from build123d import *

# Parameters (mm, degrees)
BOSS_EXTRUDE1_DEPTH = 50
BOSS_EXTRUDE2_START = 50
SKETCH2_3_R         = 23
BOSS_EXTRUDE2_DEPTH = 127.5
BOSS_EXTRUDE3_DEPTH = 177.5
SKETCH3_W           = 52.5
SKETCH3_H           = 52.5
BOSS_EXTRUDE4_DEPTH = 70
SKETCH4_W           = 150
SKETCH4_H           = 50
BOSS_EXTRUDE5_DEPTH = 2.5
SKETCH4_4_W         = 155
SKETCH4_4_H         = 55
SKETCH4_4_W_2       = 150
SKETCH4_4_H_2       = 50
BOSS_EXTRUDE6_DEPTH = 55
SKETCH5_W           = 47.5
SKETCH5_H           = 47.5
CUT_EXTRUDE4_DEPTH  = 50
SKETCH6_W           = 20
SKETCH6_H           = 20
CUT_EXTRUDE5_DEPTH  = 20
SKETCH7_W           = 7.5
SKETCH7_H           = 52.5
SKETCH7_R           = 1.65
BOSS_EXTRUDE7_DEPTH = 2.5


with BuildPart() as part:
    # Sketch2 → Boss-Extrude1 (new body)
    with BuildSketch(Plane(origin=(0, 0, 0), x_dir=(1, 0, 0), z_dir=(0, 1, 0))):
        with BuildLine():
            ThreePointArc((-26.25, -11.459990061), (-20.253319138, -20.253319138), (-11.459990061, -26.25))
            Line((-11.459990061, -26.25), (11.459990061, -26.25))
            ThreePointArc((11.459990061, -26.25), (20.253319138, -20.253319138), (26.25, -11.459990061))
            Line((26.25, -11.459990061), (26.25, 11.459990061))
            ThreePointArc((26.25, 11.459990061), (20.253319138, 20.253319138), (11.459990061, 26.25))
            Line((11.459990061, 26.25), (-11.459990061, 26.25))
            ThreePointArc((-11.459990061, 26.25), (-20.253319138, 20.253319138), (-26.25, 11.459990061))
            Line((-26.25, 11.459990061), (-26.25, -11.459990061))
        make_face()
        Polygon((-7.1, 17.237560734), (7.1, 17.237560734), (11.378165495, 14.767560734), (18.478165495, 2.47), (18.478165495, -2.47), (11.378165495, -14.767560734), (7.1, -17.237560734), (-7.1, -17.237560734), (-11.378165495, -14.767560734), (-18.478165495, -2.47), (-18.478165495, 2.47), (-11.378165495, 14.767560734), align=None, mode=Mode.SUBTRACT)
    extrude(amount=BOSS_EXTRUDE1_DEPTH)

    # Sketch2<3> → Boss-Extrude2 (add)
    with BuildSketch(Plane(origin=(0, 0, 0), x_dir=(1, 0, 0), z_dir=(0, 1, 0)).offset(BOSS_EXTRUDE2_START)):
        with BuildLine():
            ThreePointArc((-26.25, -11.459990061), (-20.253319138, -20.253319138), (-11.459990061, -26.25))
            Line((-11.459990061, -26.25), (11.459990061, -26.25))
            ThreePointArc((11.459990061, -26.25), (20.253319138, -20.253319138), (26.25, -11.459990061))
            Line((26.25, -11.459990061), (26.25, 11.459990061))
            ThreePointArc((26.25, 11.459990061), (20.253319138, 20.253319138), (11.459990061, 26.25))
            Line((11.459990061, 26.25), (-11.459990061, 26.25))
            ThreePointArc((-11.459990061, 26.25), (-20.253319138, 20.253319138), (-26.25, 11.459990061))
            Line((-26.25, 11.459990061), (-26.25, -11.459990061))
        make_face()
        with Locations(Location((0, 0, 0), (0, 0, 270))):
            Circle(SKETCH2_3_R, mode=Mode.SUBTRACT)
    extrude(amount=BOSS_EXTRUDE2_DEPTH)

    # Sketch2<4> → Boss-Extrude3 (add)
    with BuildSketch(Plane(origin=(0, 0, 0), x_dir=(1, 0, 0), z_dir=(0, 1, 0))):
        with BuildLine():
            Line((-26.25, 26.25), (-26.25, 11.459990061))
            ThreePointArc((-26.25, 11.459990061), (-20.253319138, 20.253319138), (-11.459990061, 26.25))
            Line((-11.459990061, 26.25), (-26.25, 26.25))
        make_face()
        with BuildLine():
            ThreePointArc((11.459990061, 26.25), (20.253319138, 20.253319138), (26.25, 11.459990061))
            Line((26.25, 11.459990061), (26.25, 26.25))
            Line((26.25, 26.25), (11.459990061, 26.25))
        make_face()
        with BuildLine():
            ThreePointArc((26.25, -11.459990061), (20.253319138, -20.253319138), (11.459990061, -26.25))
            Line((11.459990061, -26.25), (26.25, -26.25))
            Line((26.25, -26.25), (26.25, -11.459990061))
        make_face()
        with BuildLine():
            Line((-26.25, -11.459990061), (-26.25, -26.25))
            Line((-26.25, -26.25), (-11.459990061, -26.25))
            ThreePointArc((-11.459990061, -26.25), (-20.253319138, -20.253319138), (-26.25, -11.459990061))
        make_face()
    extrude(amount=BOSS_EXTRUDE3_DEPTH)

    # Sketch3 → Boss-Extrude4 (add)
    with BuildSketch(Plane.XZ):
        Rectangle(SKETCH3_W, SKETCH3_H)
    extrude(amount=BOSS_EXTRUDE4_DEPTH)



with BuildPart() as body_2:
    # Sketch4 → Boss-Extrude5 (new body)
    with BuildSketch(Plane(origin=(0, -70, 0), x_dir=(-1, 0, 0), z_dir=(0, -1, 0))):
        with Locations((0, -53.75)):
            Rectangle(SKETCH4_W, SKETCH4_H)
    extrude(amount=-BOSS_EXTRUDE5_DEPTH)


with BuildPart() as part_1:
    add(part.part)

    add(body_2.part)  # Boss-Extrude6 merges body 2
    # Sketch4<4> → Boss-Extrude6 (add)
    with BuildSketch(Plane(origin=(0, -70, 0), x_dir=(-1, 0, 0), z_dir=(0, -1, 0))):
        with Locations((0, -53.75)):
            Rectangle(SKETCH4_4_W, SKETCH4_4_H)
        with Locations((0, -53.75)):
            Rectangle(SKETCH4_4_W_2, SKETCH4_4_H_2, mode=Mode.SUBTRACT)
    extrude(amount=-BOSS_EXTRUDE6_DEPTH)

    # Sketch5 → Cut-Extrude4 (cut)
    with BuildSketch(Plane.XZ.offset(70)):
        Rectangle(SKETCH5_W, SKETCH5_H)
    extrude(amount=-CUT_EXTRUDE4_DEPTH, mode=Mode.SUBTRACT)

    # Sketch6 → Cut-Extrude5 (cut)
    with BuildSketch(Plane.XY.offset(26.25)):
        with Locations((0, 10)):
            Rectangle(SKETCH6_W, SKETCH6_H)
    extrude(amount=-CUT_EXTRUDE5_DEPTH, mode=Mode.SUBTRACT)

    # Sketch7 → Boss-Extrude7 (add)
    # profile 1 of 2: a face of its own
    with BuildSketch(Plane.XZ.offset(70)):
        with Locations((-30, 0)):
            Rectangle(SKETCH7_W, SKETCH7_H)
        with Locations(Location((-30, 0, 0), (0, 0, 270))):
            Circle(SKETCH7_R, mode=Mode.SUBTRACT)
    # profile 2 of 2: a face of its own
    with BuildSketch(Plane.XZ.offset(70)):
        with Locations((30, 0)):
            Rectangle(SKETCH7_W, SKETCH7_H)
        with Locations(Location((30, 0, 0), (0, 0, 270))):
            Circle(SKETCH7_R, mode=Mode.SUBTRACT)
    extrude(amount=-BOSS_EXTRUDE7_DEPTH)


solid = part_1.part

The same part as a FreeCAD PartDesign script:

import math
import FreeCAD as App
import Part
import Sketcher
from FreeCAD import Vector
Q = App.Units.Quantity


def add_polygon(sketch, points):
    """Adds a closed chain of lines whose ends are joined by coincident constraints."""
    first, n = sketch.GeometryCount, len(points)
    for a, b in zip(points, points[1:] + points[:1]):
        sketch.addGeometry(Part.LineSegment(App.Vector(*a, 0), App.Vector(*b, 0)), False)
    for i in range(n):
        sketch.addConstraint(Sketcher.Constraint("Coincident", first + i, 2, first + (i + 1) % n, 1))

doc = App.newDocument("Part")
body = doc.addObject("PartDesign::Body", "Body")

sketch1 = body.newObject("Sketcher::SketchObject", "Sketch")
sketch1.AttachmentSupport = (doc.getObject("XZ_Plane"), [""])
sketch1.MapMode = "FlatFace"
sketch1.addGeometry(Part.ArcOfCircle(Part.Circle(Vector(0, 0, 0), Vector(0, 0, 1), 28.642519), math.radians(113.584688), math.radians(156.415312)), False)
sketch1.addGeometry(Part.LineSegment(Vector(-11.45999, 26.25, 0), Vector(11.45999, 26.25, 0)), False)
sketch1.addGeometry(Part.ArcOfCircle(Part.Circle(Vector(0, 0, 0), Vector(0, 0, 1), 28.642519), math.radians(23.584688), math.radians(66.415312)), False)
sketch1.addGeometry(Part.LineSegment(Vector(26.25, 11.45999, 0), Vector(26.25, -11.45999, 0)), False)
sketch1.addGeometry(Part.ArcOfCircle(Part.Circle(Vector(0, 0, 0), Vector(0, 0, 1), 28.642519), math.radians(-66.415312), math.radians(-23.584688)), False)
sketch1.addGeometry(Part.LineSegment(Vector(11.45999, -26.25, 0), Vector(-11.45999, -26.25, 0)), False)
sketch1.addGeometry(Part.ArcOfCircle(Part.Circle(Vector(0, 0, 0), Vector(0, 0, 1), 28.642519), math.radians(-156.415312), math.radians(-113.584688)), False)
sketch1.addGeometry(Part.LineSegment(Vector(-26.25, -11.45999, 0), Vector(-26.25, 11.45999, 0)), False)
add_polygon(sketch1, [(-11.378165, -14.767561), (-7.1, -17.237561), (7.1, -17.237561), (11.378165, -14.767561), (18.478165, -2.47), (18.478165, 2.47), (11.378165, 14.767561), (7.1, 17.237561), (-7.1, 17.237561), (-11.378165, 14.767561), (-18.478165, 2.47), (-18.478165, -2.47)])
sketch1.addConstraint([
    Sketcher.Constraint("Coincident", 0, 1, 1, 1),
    Sketcher.Constraint("Coincident", 1, 2, 2, 2),
    Sketcher.Constraint("Coincident", 2, 1, 3, 1),
    Sketcher.Constraint("Coincident", 3, 2, 4, 2),
    Sketcher.Constraint("Coincident", 4, 1, 5, 1),
    Sketcher.Constraint("Coincident", 5, 2, 6, 2),
    Sketcher.Constraint("Coincident", 6, 1, 7, 1),
    Sketcher.Constraint("Coincident", 7, 2, 0, 2),
    Sketcher.Constraint("Horizontal", 1),
    Sketcher.Constraint("Vertical", 3),
    Sketcher.Constraint("Horizontal", 5),
    Sketcher.Constraint("Vertical", 7),
    Sketcher.Constraint("Horizontal", 9),
    Sketcher.Constraint("Vertical", 12),
    Sketcher.Constraint("Horizontal", 15),
    Sketcher.Constraint("Vertical", 18),
    Sketcher.Constraint("Coincident", 0, 3, -1, 1),
    Sketcher.Constraint("Coincident", 2, 3, -1, 1),
    Sketcher.Constraint("Coincident", 4, 3, -1, 1),
    Sketcher.Constraint("Coincident", 6, 3, -1, 1),
    Sketcher.Constraint("Equal", 0, 2),
    Sketcher.Constraint("Equal", 2, 4),
    Sketcher.Constraint("Equal", 4, 6),
    Sketcher.Constraint("Symmetric", 8, 2, 14, 2, -1, 1),
    Sketcher.Constraint("Symmetric", 10, 2, 16, 2, -1, 1),
    Sketcher.Constraint("Symmetric", 11, 2, 17, 2, -1, 1),
    Sketcher.Constraint("Symmetric", 13, 2, 19, 2, -1, 1),
    Sketcher.Constraint("Symmetric", 13, 2, 16, 2, -2),
    Sketcher.Constraint("Perpendicular", 8, 11),
    Sketcher.Constraint("Perpendicular", 10, 13),
    Sketcher.Constraint("Perpendicular", 13, 16),
    Sketcher.Constraint("Perpendicular", 16, 19),
    Sketcher.Constraint("Horizontal", 3, 2, 6, 1),
    Sketcher.Constraint("Horizontal", 12, 2, 17, 2),
    Sketcher.Constraint("Vertical", 1, 2, 4, 1),
    Sketcher.Constraint("Equal", 5, 3),
    Sketcher.Constraint("Angle", 8, Q("-30 deg")),
    Sketcher.Constraint("DistanceX", 9, 1, 9, 2, 14.2),
    Sketcher.Constraint("Distance", 11, 14.2),
    Sketcher.Constraint("DistanceY", 12, 1, 12, 2, 4.94),
    Sketcher.Constraint("Distance", 8, 4.94),
    Sketcher.Constraint("DistanceY", -1, 1, 0, 1, 26.25),
    Sketcher.Constraint("Radius", 0, 28.642519),
])
pad1 = body.newObject("PartDesign::Pad", "Pad")
pad1.Profile = sketch1
pad1.Length = 50
pad1.Reversed = True

sketch2 = body.newObject("Sketcher::SketchObject", "Sketch001")
sketch2.AttachmentSupport = (doc.getObject("XZ_Plane"), [""])
sketch2.MapMode = "FlatFace"
sketch2.AttachmentOffset = App.Placement(Vector(0, 0, -50), App.Rotation())
sketch2.addGeometry([
    Part.ArcOfCircle(Part.Circle(Vector(0, 0, 0), Vector(0, 0, 1), 28.642519), math.radians(113.584688), math.radians(156.415312)),
    Part.LineSegment(Vector(-11.45999, 26.25, 0), Vector(11.45999, 26.25, 0)),
    Part.ArcOfCircle(Part.Circle(Vector(0, 0, 0), Vector(0, 0, 1), 28.642519), math.radians(23.584688), math.radians(66.415312)),
    Part.LineSegment(Vector(26.25, 11.45999, 0), Vector(26.25, -11.45999, 0)),
    Part.ArcOfCircle(Part.Circle(Vector(0, 0, 0), Vector(0, 0, 1), 28.642519), math.radians(-66.415312), math.radians(-23.584688)),
    Part.LineSegment(Vector(11.45999, -26.25, 0), Vector(-11.45999, -26.25, 0)),
    Part.ArcOfCircle(Part.Circle(Vector(0, 0, 0), Vector(0, 0, 1), 28.642519), math.radians(-156.415312), math.radians(-113.584688)),
    Part.LineSegment(Vector(-26.25, -11.45999, 0), Vector(-26.25, 11.45999, 0)),
    Part.Circle(Vector(0, 0, 0), Vector(0, 0, 1), 23),
], False)
sketch2.addConstraint([
    Sketcher.Constraint("Coincident", 0, 1, 1, 1),
    Sketcher.Constraint("Coincident", 1, 2, 2, 2),
    Sketcher.Constraint("Coincident", 2, 1, 3, 1),
    Sketcher.Constraint("Coincident", 3, 2, 4, 2),
    Sketcher.Constraint("Coincident", 4, 1, 5, 1),
    Sketcher.Constraint("Coincident", 5, 2, 6, 2),
    Sketcher.Constraint("Coincident", 6, 1, 7, 1),
    Sketcher.Constraint("Coincident", 7, 2, 0, 2),
    Sketcher.Constraint("Horizontal", 1),
    Sketcher.Constraint("Vertical", 3),
    Sketcher.Constraint("Horizontal", 5),
    Sketcher.Constraint("Vertical", 7),
    Sketcher.Constraint("Coincident", 0, 3, -1, 1),
    Sketcher.Constraint("Coincident", 2, 3, -1, 1),
    Sketcher.Constraint("Coincident", 4, 3, -1, 1),
    Sketcher.Constraint("Coincident", 6, 3, -1, 1),
    Sketcher.Constraint("Coincident", 8, 3, -1, 1),
    Sketcher.Constraint("Equal", 0, 2),
    Sketcher.Constraint("Equal", 2, 4),
    Sketcher.Constraint("Equal", 4, 6),
    Sketcher.Constraint("Horizontal", 3, 2, 6, 1),
    Sketcher.Constraint("Vertical", 1, 2, 4, 1),
    Sketcher.Constraint("Equal", 5, 3),
    Sketcher.Constraint("Diameter", 8, 46.0),
    Sketcher.Constraint("DistanceY", -1, 1, 0, 1, 26.25),
    Sketcher.Constraint("Radius", 0, 28.642519),
])
pad2 = body.newObject("PartDesign::Pad", "Pad001")
pad2.Profile = sketch2
pad2.Length = 127.5
pad2.Reversed = True

sketch3 = body.newObject("Sketcher::SketchObject", "Sketch002")
sketch3.AttachmentSupport = (doc.getObject("XZ_Plane"), [""])
sketch3.MapMode = "FlatFace"
sketch3.addGeometry([
    Part.LineSegment(Vector(-26.25, -26.25, 0), Vector(-26.25, -11.45999, 0)),
    Part.ArcOfCircle(Part.Circle(Vector(0, 0, 0), Vector(0, 0, 1), 28.642519), math.radians(-156.415312), math.radians(-113.584688)),
    Part.LineSegment(Vector(-11.45999, -26.25, 0), Vector(-26.25, -26.25, 0)),
    Part.ArcOfCircle(Part.Circle(Vector(0, 0, 0), Vector(0, 0, 1), 28.642519), math.radians(-66.415312), math.radians(-23.584688)),
    Part.LineSegment(Vector(26.25, -11.45999, 0), Vector(26.25, -26.25, 0)),
    Part.LineSegment(Vector(26.25, -26.25, 0), Vector(11.45999, -26.25, 0)),
    Part.ArcOfCircle(Part.Circle(Vector(0, 0, 0), Vector(0, 0, 1), 28.642519), math.radians(23.584688), math.radians(66.415312)),
    Part.LineSegment(Vector(11.45999, 26.25, 0), Vector(26.25, 26.25, 0)),
    Part.LineSegment(Vector(26.25, 26.25, 0), Vector(26.25, 11.45999, 0)),
    Part.LineSegment(Vector(-26.25, 11.45999, 0), Vector(-26.25, 26.25, 0)),
    Part.LineSegment(Vector(-26.25, 26.25, 0), Vector(-11.45999, 26.25, 0)),
    Part.ArcOfCircle(Part.Circle(Vector(0, 0, 0), Vector(0, 0, 1), 28.642519), math.radians(113.584688), math.radians(156.415312)),
], False)
sketch3.addConstraint([
    Sketcher.Constraint("Coincident", 0, 2, 1, 1),
    Sketcher.Constraint("Coincident", 1, 2, 2, 1),
    Sketcher.Constraint("Coincident", 2, 2, 0, 1),
    Sketcher.Constraint("Coincident", 3, 2, 4, 1),
    Sketcher.Constraint("Coincident", 4, 2, 5, 1),
    Sketcher.Constraint("Coincident", 5, 2, 3, 1),
    Sketcher.Constraint("Coincident", 6, 2, 7, 1),
    Sketcher.Constraint("Coincident", 7, 2, 8, 1),
    Sketcher.Constraint("Coincident", 8, 2, 6, 1),
    Sketcher.Constraint("Coincident", 9, 2, 10, 1),
    Sketcher.Constraint("Coincident", 10, 2, 11, 1),
    Sketcher.Constraint("Coincident", 11, 2, 9, 1),
    Sketcher.Constraint("Vertical", 0),
    Sketcher.Constraint("Horizontal", 2),
    Sketcher.Constraint("Vertical", 4),
    Sketcher.Constraint("Horizontal", 5),
    Sketcher.Constraint("Horizontal", 7),
    Sketcher.Constraint("Vertical", 8),
    Sketcher.Constraint("Vertical", 9),
    Sketcher.Constraint("Horizontal", 10),
    Sketcher.Constraint("Coincident", 1, 3, -1, 1),
    Sketcher.Constraint("Coincident", 3, 3, -1, 1),
    Sketcher.Constraint("Coincident", 6, 3, -1, 1),
    Sketcher.Constraint("Coincident", 11, 3, -1, 1),
    Sketcher.Constraint("Equal", 1, 3),
    Sketcher.Constraint("Equal", 3, 6),
    Sketcher.Constraint("Equal", 6, 11),
    Sketcher.Constraint("Symmetric", 2, 2, 7, 2, -1, 1),
    Sketcher.Constraint("Symmetric", 4, 2, 9, 2, -1, 1),
    Sketcher.Constraint("Symmetric", 2, 2, 4, 2, -2),
    Sketcher.Constraint("Equal", 10, 0),
    Sketcher.Constraint("DistanceX", 0, 2, -1, 1, 26.25),
    Sketcher.Constraint("Radius", 1, 28.642519),
])
pad3 = body.newObject("PartDesign::Pad", "Pad002")
pad3.Profile = sketch3
pad3.Length = 177.5
pad3.Reversed = True

sketch4 = body.newObject("Sketcher::SketchObject", "Sketch003")
sketch4.AttachmentSupport = (doc.getObject("XZ_Plane"), [""])
sketch4.MapMode = "FlatFace"
add_polygon(sketch4, [(-26.25, 26.25), (-26.25, -26.25), (26.25, -26.25), (26.25, 26.25)])
sketch4.addConstraint([
    Sketcher.Constraint("Vertical", 0),
    Sketcher.Constraint("Horizontal", 1),
    Sketcher.Constraint("Vertical", 2),
    Sketcher.Constraint("Horizontal", 3),
    Sketcher.Constraint("Symmetric", 0, 2, 2, 2, -1, 1),
    Sketcher.Constraint("Equal", 3, 0),
    Sketcher.Constraint("DistanceX", 1, 1, 1, 2, 52.5),
])
pad4 = body.newObject("PartDesign::Pad", "Pad003")
pad4.Profile = sketch4
pad4.Length = 70
body2 = doc.addObject("PartDesign::Body", "Body001")

sketch5 = body2.newObject("Sketcher::SketchObject", "Sketch004")
sketch5.AttachmentSupport = (doc.getObject("XZ_Plane001"), [""])
sketch5.MapMode = "FlatFace"
sketch5.AttachmentOffset = App.Placement(Vector(0, 0, 70), App.Rotation())
add_polygon(sketch5, [(75, 28.75), (75, 78.75), (-75, 78.75), (-75, 28.75)])
sketch5.addConstraint([
    Sketcher.Constraint("Vertical", 0),
    Sketcher.Constraint("Horizontal", 1),
    Sketcher.Constraint("Vertical", 2),
    Sketcher.Constraint("Horizontal", 3),
    Sketcher.Constraint("DistanceX", 1, 2, 1, 1, 150.0),
    Sketcher.Constraint("DistanceY", 0, 1, 0, 2, 50.0),
    Sketcher.Constraint("DistanceX", -1, 1, 0, 2, 75.0),
    Sketcher.Constraint("DistanceY", -1, 1, 0, 2, 78.75),
])
pad5 = body2.newObject("PartDesign::Pad", "Pad004")
pad5.Profile = sketch5
pad5.Length = 2.5
pad5.Reversed = True
body.AllowCompound = True
doc.recompute()

boolean = body.newObject("PartDesign::Boolean", "Boolean")
boolean.Type = "Fuse"
boolean.addObjects([body2])

sketch6 = body.newObject("Sketcher::SketchObject", "Sketch005")
sketch6.AttachmentSupport = (doc.getObject("XZ_Plane"), [""])
sketch6.MapMode = "FlatFace"
sketch6.AttachmentOffset = App.Placement(Vector(0, 0, 70), App.Rotation())
add_polygon(sketch6, [(77.5, 26.25), (77.5, 81.25), (-77.5, 81.25), (-77.5, 26.25)])
add_polygon(sketch6, [(-75, 78.75), (75, 78.75), (75, 28.75), (-75, 28.75)])
sketch6.addConstraint([
    Sketcher.Constraint("Vertical", 0),
    Sketcher.Constraint("Horizontal", 1),
    Sketcher.Constraint("Vertical", 2),
    Sketcher.Constraint("Horizontal", 3),
    Sketcher.Constraint("Horizontal", 4),
    Sketcher.Constraint("Vertical", 5),
    Sketcher.Constraint("Horizontal", 6),
    Sketcher.Constraint("Vertical", 7),
    Sketcher.Constraint("DistanceX", 1, 2, 1, 1, 155.0),
    Sketcher.Constraint("DistanceX", 4, 1, 4, 2, 150.0),
    Sketcher.Constraint("DistanceY", 0, 1, 0, 2, 55.0),
    Sketcher.Constraint("DistanceY", 5, 2, 5, 1, 50.0),
    Sketcher.Constraint("DistanceX", -1, 1, 4, 2, 75.0),
    Sketcher.Constraint("DistanceX", -1, 1, 0, 2, 77.5),
    Sketcher.Constraint("DistanceY", 4, 2, 0, 2, 2.5),
    Sketcher.Constraint("DistanceY", -1, 1, 0, 2, 81.25),
])
pad6 = body.newObject("PartDesign::Pad", "Pad005")
pad6.Profile = sketch6
pad6.Length = 55
pad6.Reversed = True

sketch7 = body.newObject("Sketcher::SketchObject", "Sketch006")
sketch7.AttachmentSupport = (doc.getObject("XZ_Plane"), [""])
sketch7.MapMode = "FlatFace"
sketch7.AttachmentOffset = App.Placement(Vector(0, 0, 70), App.Rotation())
add_polygon(sketch7, [(-23.75, 23.75), (-23.75, -23.75), (23.75, -23.75), (23.75, 23.75)])
sketch7.addConstraint([
    Sketcher.Constraint("Vertical", 0),
    Sketcher.Constraint("Horizontal", 1),
    Sketcher.Constraint("Vertical", 2),
    Sketcher.Constraint("Horizontal", 3),
    Sketcher.Constraint("Symmetric", 0, 2, 2, 2, -1, 1),
    Sketcher.Constraint("Equal", 3, 0),
    Sketcher.Constraint("DistanceX", 1, 1, 1, 2, 47.5),
])
pocket1 = body.newObject("PartDesign::Pocket", "Pocket")
pocket1.Profile = sketch7
pocket1.Length = 50

sketch8 = body.newObject("Sketcher::SketchObject", "Sketch007")
sketch8.AttachmentSupport = (doc.getObject("XY_Plane"), [""])
sketch8.MapMode = "FlatFace"
sketch8.AttachmentOffset = App.Placement(Vector(0, 0, 26.25), App.Rotation())
add_polygon(sketch8, [(-10, 20), (-10, 0), (10, 0), (10, 20)])
sketch8.addConstraint([
    Sketcher.Constraint("Vertical", 0),
    Sketcher.Constraint("Horizontal", 1),
    Sketcher.Constraint("Vertical", 2),
    Sketcher.Constraint("Horizontal", 3),
    Sketcher.Constraint("Symmetric", 0, 2, 1, 2, -1, 1),
    Sketcher.Constraint("Equal", 3, 0),
    Sketcher.Constraint("DistanceX", 1, 1, 1, 2, 20.0),
])
pocket2 = body.newObject("PartDesign::Pocket", "Pocket001")
pocket2.Profile = sketch8
pocket2.Length = 20

sketch9 = body.newObject("Sketcher::SketchObject", "Sketch008")
sketch9.AttachmentSupport = (doc.getObject("XZ_Plane"), [""])
sketch9.MapMode = "FlatFace"
sketch9.AttachmentOffset = App.Placement(Vector(0, 0, 70), App.Rotation())
add_polygon(sketch9, [(-33.75, 26.25), (-33.75, -26.25), (-26.25, -26.25), (-26.25, 26.25)])
sketch9.addGeometry(Part.Circle(Vector(-30, 0, 0), Vector(0, 0, 1), 1.65), False)
add_polygon(sketch9, [(26.25, 26.25), (26.25, -26.25), (33.75, -26.25), (33.75, 26.25)])
sketch9.addGeometry(Part.Circle(Vector(30, 0, 0), Vector(0, 0, 1), 1.65), False)
sketch9.addConstraint([
    Sketcher.Constraint("Vertical", 0),
    Sketcher.Constraint("Horizontal", 1),
    Sketcher.Constraint("Vertical", 2),
    Sketcher.Constraint("Horizontal", 3),
    Sketcher.Constraint("Vertical", 5),
    Sketcher.Constraint("Horizontal", 6),
    Sketcher.Constraint("Vertical", 7),
    Sketcher.Constraint("Horizontal", 8),
    Sketcher.Constraint("Equal", 4, 9),
    Sketcher.Constraint("Symmetric", 4, 3, 9, 3, -1, 1),
    Sketcher.Constraint("Symmetric", 2, 2, 5, 2, -1, 1),
    Sketcher.Constraint("Symmetric", 0, 2, 7, 2, -1, 1),
    Sketcher.Constraint("PointOnObject", 4, 3, -1),
    Sketcher.Constraint("Horizontal", 1, 2, 5, 2),
    Sketcher.Constraint("Diameter", 4, 3.3),
    Sketcher.Constraint("DistanceX", 1, 1, 1, 2, 7.5),
    Sketcher.Constraint("DistanceY", 0, 2, 0, 1, 52.5),
    Sketcher.Constraint("DistanceX", 4, 3, -1, 1, 30.0),
    Sketcher.Constraint("DistanceX", 0, 2, 5, 2, 60.0),
])
pad7 = body.newObject("PartDesign::Pad", "Pad006")
pad7.Profile = sketch9
pad7.Length = 2.5
pad7.Reversed = True

doc.recompute()
